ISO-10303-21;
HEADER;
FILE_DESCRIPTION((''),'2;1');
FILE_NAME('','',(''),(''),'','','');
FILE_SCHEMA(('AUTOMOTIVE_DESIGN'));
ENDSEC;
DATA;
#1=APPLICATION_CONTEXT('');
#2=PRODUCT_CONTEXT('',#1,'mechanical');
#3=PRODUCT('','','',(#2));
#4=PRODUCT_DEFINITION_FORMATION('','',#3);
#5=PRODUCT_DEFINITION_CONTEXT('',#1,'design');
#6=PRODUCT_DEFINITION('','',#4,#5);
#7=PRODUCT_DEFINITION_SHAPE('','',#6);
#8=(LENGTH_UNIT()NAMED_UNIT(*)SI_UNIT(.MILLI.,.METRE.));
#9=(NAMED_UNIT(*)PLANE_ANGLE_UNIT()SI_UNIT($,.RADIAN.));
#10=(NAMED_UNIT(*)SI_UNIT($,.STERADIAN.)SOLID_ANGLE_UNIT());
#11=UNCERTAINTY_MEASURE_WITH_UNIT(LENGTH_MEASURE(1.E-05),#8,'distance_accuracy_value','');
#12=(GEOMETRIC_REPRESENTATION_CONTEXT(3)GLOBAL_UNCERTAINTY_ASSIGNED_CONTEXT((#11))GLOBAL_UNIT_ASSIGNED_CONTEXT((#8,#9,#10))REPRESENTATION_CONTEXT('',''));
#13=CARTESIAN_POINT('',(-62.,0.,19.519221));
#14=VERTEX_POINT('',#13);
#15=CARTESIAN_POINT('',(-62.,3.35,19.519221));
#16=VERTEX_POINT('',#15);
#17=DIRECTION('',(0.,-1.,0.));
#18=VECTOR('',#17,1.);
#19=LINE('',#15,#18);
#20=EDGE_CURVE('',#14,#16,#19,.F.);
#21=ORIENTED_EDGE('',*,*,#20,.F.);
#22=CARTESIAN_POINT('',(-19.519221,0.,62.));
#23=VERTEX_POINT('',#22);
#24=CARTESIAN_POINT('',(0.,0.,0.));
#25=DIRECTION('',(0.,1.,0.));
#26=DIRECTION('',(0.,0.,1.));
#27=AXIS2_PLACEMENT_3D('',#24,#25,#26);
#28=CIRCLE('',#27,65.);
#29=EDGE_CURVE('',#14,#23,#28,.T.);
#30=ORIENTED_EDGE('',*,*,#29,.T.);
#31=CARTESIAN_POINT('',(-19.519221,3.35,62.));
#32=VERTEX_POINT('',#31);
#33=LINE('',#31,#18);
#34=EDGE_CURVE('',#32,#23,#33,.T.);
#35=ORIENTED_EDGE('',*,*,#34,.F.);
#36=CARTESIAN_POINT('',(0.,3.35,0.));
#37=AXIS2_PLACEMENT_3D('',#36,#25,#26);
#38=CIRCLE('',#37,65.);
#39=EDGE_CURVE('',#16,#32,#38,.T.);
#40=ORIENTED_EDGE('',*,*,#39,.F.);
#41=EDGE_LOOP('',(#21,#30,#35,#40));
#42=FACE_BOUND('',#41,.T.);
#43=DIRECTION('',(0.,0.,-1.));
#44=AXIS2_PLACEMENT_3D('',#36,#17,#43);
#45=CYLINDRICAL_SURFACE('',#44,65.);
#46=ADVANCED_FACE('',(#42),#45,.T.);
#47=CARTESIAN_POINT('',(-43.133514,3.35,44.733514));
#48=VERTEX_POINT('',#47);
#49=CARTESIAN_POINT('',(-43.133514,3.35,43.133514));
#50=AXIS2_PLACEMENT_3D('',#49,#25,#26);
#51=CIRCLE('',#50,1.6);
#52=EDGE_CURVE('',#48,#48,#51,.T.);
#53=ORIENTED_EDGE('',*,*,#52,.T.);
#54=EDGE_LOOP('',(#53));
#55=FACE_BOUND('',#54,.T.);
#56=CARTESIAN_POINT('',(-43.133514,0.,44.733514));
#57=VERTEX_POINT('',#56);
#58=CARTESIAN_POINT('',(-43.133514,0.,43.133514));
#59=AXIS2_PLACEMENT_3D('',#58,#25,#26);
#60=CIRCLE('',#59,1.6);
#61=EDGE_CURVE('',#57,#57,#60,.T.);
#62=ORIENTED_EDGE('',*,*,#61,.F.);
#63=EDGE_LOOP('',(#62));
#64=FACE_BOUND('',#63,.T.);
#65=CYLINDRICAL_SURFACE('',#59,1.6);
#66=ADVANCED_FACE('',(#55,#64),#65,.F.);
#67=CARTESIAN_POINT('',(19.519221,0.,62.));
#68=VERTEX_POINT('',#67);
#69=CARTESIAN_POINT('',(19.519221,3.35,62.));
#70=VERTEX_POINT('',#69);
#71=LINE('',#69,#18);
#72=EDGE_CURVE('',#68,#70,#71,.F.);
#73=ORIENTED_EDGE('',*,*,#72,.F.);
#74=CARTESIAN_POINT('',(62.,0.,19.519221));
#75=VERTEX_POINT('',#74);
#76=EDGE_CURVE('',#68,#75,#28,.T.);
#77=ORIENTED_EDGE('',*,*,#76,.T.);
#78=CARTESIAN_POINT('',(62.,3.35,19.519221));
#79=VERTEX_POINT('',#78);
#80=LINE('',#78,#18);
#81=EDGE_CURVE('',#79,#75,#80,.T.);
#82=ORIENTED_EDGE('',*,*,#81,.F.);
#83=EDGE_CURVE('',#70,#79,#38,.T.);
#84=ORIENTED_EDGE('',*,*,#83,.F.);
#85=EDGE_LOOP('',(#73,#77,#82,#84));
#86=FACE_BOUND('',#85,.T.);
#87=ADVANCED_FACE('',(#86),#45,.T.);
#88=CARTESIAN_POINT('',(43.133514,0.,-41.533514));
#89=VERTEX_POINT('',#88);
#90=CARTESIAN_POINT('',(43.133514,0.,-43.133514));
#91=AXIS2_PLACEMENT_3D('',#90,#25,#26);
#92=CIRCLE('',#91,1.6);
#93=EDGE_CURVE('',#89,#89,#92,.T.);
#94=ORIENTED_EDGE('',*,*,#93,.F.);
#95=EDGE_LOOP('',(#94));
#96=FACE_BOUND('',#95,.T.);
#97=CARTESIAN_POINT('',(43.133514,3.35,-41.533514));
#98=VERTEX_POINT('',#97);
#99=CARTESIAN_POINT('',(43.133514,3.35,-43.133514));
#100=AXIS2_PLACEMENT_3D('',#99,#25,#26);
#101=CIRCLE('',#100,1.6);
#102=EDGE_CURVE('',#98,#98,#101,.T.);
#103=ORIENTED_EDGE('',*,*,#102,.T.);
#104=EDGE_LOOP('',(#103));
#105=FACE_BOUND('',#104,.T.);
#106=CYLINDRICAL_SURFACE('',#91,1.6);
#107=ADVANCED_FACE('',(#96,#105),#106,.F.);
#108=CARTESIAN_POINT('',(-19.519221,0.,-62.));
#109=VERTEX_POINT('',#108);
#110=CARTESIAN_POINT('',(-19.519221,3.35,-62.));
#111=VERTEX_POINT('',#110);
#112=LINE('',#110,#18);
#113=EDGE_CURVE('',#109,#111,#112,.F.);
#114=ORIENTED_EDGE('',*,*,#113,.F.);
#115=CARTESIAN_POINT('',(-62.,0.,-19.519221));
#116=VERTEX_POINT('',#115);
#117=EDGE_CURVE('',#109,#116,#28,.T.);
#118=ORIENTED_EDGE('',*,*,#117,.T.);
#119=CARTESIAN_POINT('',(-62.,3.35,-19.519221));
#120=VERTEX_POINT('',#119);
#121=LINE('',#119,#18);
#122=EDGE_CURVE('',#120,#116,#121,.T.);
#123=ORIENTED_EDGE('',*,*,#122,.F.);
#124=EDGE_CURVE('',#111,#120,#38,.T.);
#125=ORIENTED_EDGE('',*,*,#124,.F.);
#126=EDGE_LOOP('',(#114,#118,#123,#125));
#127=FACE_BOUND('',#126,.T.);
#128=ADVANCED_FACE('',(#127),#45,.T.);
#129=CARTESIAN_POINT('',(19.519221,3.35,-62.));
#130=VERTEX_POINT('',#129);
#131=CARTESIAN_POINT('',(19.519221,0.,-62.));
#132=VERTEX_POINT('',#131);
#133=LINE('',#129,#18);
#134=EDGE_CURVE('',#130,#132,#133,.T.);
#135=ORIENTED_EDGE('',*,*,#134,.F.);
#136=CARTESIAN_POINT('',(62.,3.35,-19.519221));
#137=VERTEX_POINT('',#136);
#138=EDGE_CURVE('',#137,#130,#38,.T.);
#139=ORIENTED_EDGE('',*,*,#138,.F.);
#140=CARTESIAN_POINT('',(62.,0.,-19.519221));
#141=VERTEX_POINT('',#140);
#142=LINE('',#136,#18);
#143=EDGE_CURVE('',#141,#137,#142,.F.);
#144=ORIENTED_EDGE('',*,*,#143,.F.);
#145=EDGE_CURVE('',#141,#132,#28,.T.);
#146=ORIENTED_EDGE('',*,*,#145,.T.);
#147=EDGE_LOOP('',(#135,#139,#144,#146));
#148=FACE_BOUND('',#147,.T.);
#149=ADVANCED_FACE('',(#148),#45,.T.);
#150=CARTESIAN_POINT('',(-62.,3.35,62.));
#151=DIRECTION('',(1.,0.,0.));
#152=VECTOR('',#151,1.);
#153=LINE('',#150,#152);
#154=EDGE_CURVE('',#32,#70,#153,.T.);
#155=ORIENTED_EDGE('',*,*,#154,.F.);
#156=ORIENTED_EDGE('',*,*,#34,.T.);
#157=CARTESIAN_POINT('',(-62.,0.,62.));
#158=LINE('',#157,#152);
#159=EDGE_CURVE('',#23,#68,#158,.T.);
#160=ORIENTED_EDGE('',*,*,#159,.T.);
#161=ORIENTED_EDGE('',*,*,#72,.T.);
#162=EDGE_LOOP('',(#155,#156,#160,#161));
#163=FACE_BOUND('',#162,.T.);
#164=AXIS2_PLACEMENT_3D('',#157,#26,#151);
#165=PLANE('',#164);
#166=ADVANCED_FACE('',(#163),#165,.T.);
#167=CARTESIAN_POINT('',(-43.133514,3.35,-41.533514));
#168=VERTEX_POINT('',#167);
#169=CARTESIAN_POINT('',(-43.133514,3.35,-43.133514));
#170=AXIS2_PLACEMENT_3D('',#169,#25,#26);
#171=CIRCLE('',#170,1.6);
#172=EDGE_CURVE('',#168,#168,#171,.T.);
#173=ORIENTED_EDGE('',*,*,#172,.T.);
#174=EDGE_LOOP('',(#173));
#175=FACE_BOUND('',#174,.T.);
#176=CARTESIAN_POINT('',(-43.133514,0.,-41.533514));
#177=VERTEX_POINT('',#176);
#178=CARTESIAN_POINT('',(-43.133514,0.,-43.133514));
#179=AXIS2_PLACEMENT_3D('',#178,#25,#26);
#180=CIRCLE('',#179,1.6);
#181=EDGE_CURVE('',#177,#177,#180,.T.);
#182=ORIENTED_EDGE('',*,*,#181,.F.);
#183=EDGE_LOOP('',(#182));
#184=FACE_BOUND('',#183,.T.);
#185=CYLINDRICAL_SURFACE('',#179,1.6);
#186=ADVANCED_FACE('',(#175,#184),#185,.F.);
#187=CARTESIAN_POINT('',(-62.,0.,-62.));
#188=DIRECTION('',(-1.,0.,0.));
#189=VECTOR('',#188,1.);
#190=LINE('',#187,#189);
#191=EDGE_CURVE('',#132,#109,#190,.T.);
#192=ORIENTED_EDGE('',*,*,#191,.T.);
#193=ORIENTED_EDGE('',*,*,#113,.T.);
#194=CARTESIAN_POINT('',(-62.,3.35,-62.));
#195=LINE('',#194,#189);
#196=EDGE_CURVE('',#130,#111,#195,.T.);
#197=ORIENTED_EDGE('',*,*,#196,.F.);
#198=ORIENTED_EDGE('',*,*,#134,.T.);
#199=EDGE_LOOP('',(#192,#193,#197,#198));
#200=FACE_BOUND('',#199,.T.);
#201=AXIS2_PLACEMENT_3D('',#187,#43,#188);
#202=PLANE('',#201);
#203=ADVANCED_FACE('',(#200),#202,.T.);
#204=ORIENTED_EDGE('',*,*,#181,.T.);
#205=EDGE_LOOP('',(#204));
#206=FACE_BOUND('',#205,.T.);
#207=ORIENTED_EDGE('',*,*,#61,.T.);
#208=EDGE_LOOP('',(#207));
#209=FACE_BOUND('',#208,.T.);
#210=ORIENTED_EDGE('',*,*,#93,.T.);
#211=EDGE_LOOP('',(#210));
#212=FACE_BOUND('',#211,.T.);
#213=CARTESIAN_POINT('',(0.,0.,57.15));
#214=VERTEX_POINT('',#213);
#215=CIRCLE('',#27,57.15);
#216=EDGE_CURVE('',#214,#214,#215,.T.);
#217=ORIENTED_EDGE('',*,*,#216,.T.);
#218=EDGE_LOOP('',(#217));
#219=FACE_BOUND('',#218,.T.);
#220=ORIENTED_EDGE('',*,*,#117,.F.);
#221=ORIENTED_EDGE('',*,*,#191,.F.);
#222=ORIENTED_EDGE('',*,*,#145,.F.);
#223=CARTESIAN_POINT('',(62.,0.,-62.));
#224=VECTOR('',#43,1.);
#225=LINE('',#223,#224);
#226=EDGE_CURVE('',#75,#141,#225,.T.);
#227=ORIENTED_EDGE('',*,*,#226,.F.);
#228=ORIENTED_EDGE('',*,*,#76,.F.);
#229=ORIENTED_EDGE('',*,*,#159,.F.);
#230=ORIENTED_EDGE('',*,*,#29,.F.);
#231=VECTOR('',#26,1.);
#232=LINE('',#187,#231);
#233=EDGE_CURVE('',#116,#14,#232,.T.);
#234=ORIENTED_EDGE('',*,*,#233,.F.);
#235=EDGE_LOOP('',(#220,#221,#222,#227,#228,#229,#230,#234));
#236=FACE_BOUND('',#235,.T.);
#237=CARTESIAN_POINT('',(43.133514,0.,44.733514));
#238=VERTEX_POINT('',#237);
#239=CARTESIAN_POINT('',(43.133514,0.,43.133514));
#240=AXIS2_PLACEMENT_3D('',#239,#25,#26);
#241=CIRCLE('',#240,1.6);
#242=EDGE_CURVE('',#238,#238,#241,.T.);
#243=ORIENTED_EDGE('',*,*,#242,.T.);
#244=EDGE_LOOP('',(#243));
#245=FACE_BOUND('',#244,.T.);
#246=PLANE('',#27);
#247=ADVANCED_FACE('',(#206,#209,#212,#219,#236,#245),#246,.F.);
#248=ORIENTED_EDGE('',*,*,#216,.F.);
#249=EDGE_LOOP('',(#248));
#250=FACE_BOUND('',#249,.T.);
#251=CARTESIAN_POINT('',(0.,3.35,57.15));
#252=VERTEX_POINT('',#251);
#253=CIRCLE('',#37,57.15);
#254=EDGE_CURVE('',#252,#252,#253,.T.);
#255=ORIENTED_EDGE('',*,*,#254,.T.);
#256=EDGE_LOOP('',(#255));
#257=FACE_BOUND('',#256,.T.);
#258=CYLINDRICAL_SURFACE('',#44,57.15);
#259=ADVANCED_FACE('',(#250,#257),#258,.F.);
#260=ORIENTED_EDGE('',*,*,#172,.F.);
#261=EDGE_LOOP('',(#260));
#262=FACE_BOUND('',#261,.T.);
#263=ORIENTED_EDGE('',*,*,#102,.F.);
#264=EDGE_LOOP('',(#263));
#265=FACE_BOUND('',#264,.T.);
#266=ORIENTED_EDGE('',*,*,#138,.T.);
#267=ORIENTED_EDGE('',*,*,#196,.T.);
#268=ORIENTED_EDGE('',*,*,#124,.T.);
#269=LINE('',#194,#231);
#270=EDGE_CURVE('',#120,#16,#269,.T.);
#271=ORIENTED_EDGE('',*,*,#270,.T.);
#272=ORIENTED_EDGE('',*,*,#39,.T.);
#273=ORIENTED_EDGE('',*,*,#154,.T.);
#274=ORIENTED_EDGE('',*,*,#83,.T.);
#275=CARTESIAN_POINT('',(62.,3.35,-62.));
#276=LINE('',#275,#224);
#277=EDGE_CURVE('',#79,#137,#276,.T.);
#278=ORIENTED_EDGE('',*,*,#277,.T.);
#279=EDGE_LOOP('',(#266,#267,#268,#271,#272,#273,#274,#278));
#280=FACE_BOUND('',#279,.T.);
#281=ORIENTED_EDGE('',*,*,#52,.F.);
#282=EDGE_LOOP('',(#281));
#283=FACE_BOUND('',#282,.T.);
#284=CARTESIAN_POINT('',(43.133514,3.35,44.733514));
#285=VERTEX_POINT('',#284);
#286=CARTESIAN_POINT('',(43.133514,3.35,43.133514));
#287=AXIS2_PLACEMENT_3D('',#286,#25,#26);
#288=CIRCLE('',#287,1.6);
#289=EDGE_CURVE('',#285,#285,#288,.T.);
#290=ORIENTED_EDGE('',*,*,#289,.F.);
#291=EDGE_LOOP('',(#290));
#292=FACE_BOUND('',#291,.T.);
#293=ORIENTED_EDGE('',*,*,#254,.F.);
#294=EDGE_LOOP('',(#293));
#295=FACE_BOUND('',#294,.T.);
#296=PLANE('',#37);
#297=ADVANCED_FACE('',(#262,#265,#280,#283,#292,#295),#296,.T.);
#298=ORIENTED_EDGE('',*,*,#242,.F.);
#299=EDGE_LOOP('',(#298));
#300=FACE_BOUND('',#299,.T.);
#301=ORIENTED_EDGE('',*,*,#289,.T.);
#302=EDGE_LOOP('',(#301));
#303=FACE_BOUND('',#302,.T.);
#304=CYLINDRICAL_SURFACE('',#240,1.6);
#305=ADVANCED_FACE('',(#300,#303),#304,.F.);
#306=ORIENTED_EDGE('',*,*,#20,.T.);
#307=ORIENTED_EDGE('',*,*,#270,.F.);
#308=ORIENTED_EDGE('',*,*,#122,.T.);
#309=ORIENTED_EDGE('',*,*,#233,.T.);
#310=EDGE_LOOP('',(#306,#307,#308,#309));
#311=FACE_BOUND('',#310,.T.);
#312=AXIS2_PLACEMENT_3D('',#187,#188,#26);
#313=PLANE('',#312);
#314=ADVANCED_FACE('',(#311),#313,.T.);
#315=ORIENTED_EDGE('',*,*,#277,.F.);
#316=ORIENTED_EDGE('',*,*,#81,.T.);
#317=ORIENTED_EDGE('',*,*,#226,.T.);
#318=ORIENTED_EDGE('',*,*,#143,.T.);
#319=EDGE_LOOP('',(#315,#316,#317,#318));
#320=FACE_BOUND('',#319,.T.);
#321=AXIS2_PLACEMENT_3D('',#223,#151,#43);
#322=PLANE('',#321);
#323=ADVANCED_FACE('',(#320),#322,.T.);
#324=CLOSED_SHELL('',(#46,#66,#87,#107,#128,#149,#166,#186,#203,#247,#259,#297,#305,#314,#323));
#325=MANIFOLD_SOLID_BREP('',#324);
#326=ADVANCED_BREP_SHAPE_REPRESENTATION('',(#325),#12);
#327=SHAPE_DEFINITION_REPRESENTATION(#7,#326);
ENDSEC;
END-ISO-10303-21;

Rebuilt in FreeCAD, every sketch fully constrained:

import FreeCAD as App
import Part
import Sketcher
from FreeCAD import Vector


def add_polygon(sketch, points):
    """Adds a closed chain of lines whose ends are joined by coincident constraints."""
    first, n = sketch.GeometryCount, len(points)
    for a, b in zip(points, points[1:] + points[:1]):
        sketch.addGeometry(Part.LineSegment(App.Vector(*a, 0), App.Vector(*b, 0)), False)
    for i in range(n):
        sketch.addConstraint(Sketcher.Constraint("Coincident", first + i, 2, first + (i + 1) % n, 1))

doc = App.newDocument("Part")
body = doc.addObject("PartDesign::Body", "Body")

# Sketch on XZ plane
sketch1 = body.newObject("Sketcher::SketchObject", "Sketch")
sketch1.AttachmentSupport = (doc.getObject("XZ_Plane"), [""])
sketch1.MapMode = "FlatFace"
sketch1.addGeometry([
    Part.Circle(Vector(0, 0, 0), Vector(0, 0, 1), 65),
    Part.Circle(Vector(0, 0, 0), Vector(0, 0, 1), 57),
], False)
sketch1.addConstraint([
    Sketcher.Constraint("Coincident", 0, 3, -1, 1),
    Sketcher.Constraint("Coincident", 1, 3, -1, 1),
    Sketcher.Constraint("Diameter", 0, 130.0),
    Sketcher.Constraint("Diameter", 1, 114.3),
])
pad1 = body.newObject("PartDesign::Pad", "Pad")
pad1.Profile = sketch1
pad1.Length = 3.35
pad1.Reversed = True

# Sketch on XZ plane
sketch2 = body.newObject("Sketcher::SketchObject", "Sketch001")
sketch2.AttachmentSupport = (doc.getObject("XZ_Plane"), [""])
sketch2.MapMode = "FlatFace"
sketch2.AttachmentOffset = App.Placement(Vector(0, 0, -3.35), App.Rotation())
add_polygon(sketch2, [(-81, -76), (-81, 76), (81, 76), (81, -76)])  # lines 0-3
add_polygon(sketch2, [(62, 62), (-62, 62), (-62, -62), (62, -62)])  # lines 4-7
sketch2.addConstraint([
    Sketcher.Constraint("Vertical", 0),
    Sketcher.Constraint("Horizontal", 1),
    Sketcher.Constraint("Vertical", 2),
    Sketcher.Constraint("Horizontal", 3),
    Sketcher.Constraint("Horizontal", 4),
    Sketcher.Constraint("Vertical", 5),
    Sketcher.Constraint("Horizontal", 6),
    Sketcher.Constraint("Vertical", 7),
    Sketcher.Constraint("Symmetric", 4, 2, 6, 2, -1, 1),
    Sketcher.Constraint("Equal", 6, 5),
    Sketcher.Constraint("DistanceX", 4, 2, 4, 1, 124.0),
    Sketcher.Constraint("DistanceY", 0, 1, 0, 2, 152.839851),
    Sketcher.Constraint("DistanceX", 1, 1, 1, 2, 162.249174),
    Sketcher.Constraint("DistanceX", 0, 2, -1, 1, 81.10745),
    Sketcher.Constraint("DistanceY", -1, 1, 0, 2, 76.419926),
])
pocket1 = body.newObject("PartDesign::Pocket", "Pocket")
pocket1.Profile = sketch2
pocket1.Length = 3.35
pocket1.Reversed = True

# Sketch on XZ plane
sketch3 = body.newObject("Sketcher::SketchObject", "Sketch002")
sketch3.AttachmentSupport = (doc.getObject("XZ_Plane"), [""])
sketch3.MapMode = "FlatFace"
sketch3.AttachmentOffset = App.Placement(Vector(0, 0, -3.35), App.Rotation())
sketch3.addGeometry([
    Part.Circle(Vector(43.1, 43.1, 0), Vector(0, 0, 1), 1.6),
    Part.Circle(Vector(-43.1, 43.1, 0), Vector(0, 0, 1), 1.6),
    Part.Circle(Vector(-43.1, -43.1, 0), Vector(0, 0, 1), 1.6),
    Part.Circle(Vector(43.1, -43.1, 0), Vector(0, 0, 1), 1.6),
], False)
sketch3.addConstraint([
    Sketcher.Constraint("Equal", 0, 1),
    Sketcher.Constraint("Equal", 1, 2),
    Sketcher.Constraint("Equal", 2, 3),
    Sketcher.Constraint("Symmetric", 0, 3, 2, 3, -1, 1),
    Sketcher.Constraint("Symmetric", 1, 3, 3, 3, -1, 1),
    Sketcher.Constraint("Symmetric", 0, 3, 1, 3, -2),
    Sketcher.Constraint("Diameter", 0, 3.2),
    Sketcher.Constraint("DistanceX", -1, 1, 0, 3, 43.133514),
    Sketcher.Constraint("DistanceY", -1, 1, 0, 3, 43.133514),
])
pocket2 = body.newObject("PartDesign::Pocket", "Pocket001")
pocket2.Profile = sketch3
pocket2.Length = 3.35
pocket2.Reversed = True

doc.recompute()
